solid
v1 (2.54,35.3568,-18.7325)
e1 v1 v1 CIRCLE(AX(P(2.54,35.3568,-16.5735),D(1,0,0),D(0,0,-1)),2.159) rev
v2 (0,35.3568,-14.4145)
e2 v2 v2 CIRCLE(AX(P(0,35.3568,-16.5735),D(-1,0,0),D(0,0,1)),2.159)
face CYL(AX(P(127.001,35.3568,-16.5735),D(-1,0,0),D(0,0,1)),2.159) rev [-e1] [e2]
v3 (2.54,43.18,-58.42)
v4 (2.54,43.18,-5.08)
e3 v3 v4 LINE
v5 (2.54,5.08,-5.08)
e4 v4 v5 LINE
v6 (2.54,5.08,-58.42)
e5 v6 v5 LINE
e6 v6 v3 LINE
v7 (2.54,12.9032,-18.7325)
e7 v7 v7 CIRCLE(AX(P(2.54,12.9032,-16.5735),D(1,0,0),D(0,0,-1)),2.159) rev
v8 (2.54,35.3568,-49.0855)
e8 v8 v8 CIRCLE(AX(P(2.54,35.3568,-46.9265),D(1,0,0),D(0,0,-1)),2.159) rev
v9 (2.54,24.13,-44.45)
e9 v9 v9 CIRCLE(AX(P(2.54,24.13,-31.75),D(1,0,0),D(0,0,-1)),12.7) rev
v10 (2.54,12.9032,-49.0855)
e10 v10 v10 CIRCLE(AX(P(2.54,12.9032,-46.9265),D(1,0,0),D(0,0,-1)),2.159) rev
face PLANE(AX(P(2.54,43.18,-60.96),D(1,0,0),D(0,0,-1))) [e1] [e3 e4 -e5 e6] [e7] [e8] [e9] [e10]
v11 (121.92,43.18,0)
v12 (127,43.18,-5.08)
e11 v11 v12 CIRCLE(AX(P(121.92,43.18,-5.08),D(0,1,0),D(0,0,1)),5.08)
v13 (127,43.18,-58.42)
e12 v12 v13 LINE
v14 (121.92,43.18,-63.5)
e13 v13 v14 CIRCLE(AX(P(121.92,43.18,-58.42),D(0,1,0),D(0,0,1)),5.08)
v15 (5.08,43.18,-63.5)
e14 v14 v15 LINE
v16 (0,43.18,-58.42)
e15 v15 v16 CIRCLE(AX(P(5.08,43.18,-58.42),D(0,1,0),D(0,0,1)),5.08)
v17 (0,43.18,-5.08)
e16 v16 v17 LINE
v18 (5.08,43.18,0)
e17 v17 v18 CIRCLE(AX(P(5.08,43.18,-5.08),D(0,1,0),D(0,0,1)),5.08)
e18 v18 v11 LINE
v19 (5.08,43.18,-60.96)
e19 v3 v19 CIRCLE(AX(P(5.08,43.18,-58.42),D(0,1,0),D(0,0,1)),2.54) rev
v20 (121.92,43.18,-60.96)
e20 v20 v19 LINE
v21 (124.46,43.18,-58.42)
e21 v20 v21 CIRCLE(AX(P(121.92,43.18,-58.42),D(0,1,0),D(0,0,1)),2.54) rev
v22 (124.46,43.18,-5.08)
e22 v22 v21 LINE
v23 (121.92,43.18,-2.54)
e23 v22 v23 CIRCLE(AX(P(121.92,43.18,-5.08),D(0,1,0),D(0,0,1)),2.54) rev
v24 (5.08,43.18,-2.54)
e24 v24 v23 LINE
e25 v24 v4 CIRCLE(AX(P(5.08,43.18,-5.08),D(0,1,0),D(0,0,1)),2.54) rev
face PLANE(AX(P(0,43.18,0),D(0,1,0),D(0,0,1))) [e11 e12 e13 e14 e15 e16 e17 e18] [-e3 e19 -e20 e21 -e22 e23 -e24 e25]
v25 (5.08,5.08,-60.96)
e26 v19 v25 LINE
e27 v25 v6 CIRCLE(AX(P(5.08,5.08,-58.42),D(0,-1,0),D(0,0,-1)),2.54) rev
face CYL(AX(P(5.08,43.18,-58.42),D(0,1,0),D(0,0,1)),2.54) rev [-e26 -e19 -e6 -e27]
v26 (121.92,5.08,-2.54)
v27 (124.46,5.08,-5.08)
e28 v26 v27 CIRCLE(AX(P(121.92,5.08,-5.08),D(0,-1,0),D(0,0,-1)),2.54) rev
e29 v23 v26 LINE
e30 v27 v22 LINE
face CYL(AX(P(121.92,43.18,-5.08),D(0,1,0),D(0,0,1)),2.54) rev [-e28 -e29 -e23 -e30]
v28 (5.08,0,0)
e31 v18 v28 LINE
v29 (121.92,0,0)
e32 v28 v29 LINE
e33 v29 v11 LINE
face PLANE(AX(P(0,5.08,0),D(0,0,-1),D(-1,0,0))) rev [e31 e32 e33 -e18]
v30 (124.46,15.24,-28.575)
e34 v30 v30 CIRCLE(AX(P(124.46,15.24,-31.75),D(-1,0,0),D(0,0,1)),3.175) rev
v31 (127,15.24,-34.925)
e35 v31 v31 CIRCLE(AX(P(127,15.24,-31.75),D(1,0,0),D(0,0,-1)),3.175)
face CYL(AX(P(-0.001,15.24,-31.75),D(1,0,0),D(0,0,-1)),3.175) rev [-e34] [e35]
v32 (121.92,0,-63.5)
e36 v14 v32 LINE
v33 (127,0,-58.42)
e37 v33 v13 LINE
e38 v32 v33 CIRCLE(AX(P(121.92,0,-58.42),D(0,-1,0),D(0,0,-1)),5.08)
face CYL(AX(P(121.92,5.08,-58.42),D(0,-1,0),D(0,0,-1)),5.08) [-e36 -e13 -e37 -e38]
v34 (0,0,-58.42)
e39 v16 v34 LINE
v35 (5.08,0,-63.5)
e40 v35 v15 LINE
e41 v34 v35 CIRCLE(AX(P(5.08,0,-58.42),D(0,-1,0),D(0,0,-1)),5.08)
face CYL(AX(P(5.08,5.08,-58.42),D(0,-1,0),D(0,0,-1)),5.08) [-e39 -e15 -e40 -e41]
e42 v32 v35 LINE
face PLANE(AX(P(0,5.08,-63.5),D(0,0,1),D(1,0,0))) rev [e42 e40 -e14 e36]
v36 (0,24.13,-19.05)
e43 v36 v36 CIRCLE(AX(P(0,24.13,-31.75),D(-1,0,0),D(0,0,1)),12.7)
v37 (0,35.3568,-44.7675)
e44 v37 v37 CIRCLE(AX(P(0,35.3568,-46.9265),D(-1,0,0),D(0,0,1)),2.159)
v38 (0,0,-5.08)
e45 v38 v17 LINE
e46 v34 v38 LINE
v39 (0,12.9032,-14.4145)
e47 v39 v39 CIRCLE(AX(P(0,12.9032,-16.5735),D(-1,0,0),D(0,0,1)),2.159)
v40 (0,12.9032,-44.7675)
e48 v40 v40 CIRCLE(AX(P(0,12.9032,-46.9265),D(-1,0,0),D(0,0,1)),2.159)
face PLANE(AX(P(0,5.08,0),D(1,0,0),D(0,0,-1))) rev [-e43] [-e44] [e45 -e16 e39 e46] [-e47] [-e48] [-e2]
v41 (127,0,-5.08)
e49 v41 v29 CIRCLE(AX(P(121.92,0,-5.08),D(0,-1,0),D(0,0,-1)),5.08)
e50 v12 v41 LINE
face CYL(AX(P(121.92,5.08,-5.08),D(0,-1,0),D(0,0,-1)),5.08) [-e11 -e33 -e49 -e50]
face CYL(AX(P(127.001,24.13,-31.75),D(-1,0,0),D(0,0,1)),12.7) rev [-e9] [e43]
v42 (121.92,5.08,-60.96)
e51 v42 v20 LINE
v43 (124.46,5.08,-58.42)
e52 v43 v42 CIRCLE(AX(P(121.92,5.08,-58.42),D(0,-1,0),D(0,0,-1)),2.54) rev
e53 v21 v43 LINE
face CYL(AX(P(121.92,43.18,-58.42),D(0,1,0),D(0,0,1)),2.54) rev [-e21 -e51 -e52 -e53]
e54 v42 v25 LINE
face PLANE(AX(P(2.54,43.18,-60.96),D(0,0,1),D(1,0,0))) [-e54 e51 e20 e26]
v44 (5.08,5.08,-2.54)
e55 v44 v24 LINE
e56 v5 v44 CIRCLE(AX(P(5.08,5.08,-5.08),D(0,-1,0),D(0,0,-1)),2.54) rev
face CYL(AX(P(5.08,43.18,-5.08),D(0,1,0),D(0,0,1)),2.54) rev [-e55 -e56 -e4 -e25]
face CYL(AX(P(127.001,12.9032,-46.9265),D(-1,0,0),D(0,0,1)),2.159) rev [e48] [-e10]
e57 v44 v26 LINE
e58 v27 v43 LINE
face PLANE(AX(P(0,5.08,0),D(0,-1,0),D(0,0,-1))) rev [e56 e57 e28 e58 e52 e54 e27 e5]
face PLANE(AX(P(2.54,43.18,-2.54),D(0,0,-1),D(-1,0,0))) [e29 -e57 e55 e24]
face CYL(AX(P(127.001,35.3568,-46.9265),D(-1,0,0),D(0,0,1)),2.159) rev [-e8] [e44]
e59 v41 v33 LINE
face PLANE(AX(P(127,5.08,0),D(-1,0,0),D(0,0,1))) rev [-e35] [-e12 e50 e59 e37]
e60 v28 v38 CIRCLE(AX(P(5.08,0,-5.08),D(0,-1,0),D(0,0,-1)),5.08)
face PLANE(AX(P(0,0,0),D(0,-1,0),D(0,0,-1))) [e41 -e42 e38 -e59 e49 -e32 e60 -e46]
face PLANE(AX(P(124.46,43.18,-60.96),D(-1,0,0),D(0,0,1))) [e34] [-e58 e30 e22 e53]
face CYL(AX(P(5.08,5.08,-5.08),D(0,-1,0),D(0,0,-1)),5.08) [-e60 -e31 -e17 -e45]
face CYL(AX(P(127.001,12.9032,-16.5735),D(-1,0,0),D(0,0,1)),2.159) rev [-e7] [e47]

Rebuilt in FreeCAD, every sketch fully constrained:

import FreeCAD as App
import Part
import Sketcher
from FreeCAD import Vector
Q = App.Units.Quantity


def edges_at(feature, points):
    """Names of the edges that pass closest to the given points."""
    edges = feature.Shape.Edges
    near = lambda p: min(range(len(edges)), key=lambda i: edges[i].distToShape(Part.Vertex(*p))[0])
    return sorted({f"Edge{near(p) + 1}" for p in points})

doc = App.newDocument("Part")
body = doc.addObject("PartDesign::Body", "Body")

sketch1 = doc.addObject("Sketcher::SketchObject", "Sketch")
body.addObject(sketch1)
sketch1.AttachmentSupport = (doc.XZ_Plane, [""])
sketch1.MapMode = "FlatFace"
sketch1.addGeometry(Part.LineSegment(Vector(0, -63.5, 0), Vector(0, 0, 0)), False)
sketch1.addGeometry(Part.LineSegment(Vector(0, 0, 0), Vector(127, 0, 0)), False)
sketch1.addGeometry(Part.LineSegment(Vector(127, 0, 0), Vector(127, -63.5, 0)), False)
sketch1.addGeometry(Part.LineSegment(Vector(127, -63.5, 0), Vector(0, -63.5, 0)), False)
sketch1.addConstraint(Sketcher.Constraint("Coincident", 0, 2, 1, 1))
sketch1.addConstraint(Sketcher.Constraint("Coincident", 1, 2, 2, 1))
sketch1.addConstraint(Sketcher.Constraint("Coincident", 2, 2, 3, 1))
sketch1.addConstraint(Sketcher.Constraint("Coincident", 3, 2, 0, 1))
sketch1.addConstraint(Sketcher.Constraint("Vertical", 0))
sketch1.addConstraint(Sketcher.Constraint("Horizontal", 1))
sketch1.addConstraint(Sketcher.Constraint("Vertical", 2))
sketch1.addConstraint(Sketcher.Constraint("Horizontal", 3))
sketch1.addConstraint(Sketcher.Constraint("Coincident", 0, 2, -1, 1))
sketch1.addConstraint(Sketcher.Constraint("DistanceX", 1, 1, 1, 2, Q("5 in")))
sketch1.addConstraint(Sketcher.Constraint("DistanceY", 0, 1, 0, 2, Q("2.5 in")))
pad1 = doc.addObject("PartDesign::Pad", "Pad")
body.addObject(pad1)
pad1.Profile = sketch1
pad1.Length = Q("0.2 in")
pad1.Reversed = True

sketch2 = doc.addObject("Sketcher::SketchObject", "Sketch001")
body.addObject(sketch2)
sketch2.AttachmentSupport = (doc.XZ_Plane, [""])
sketch2.MapMode = "FlatFace"
sketch2.AttachmentOffset = App.Placement(Vector(0, 0, -0.2 * 25.4), App.Rotation())
sketch2.addGeometry(Part.LineSegment(Vector(0, -63.5, 0), Vector(0, 0, 0)), False)
sketch2.addGeometry(Part.LineSegment(Vector(0, 0, 0), Vector(127, 0, 0)), False)
sketch2.addGeometry(Part.LineSegment(Vector(127, 0, 0), Vector(127, -63.5, 0)), False)
sketch2.addGeometry(Part.LineSegment(Vector(127, -63.5, 0), Vector(0, -63.5, 0)), False)
sketch2.addGeometry(Part.LineSegment(Vector(124.46, -2.54, 0), Vector(2.54, -2.54, 0)), False)
sketch2.addGeometry(Part.LineSegment(Vector(2.54, -2.54, 0), Vector(2.54, -60.96, 0)), False)
sketch2.addGeometry(Part.LineSegment(Vector(2.54, -60.96, 0), Vector(124.46, -60.96, 0)), False)
sketch2.addGeometry(Part.LineSegment(Vector(124.46, -60.96, 0), Vector(124.46, -2.54, 0)), False)
sketch2.addConstraint(Sketcher.Constraint("Coincident", 0, 2, 1, 1))
sketch2.addConstraint(Sketcher.Constraint("Coincident", 1, 2, 2, 1))
sketch2.addConstraint(Sketcher.Constraint("Coincident", 2, 2, 3, 1))
sketch2.addConstraint(Sketcher.Constraint("Coincident", 3, 2, 0, 1))
sketch2.addConstraint(Sketcher.Constraint("Coincident", 4, 2, 5, 1))
sketch2.addConstraint(Sketcher.Constraint("Coincident", 5, 2, 6, 1))
sketch2.addConstraint(Sketcher.Constraint("Coincident", 6, 2, 7, 1))
sketch2.addConstraint(Sketcher.Constraint("Coincident", 7, 2, 4, 1))
sketch2.addConstraint(Sketcher.Constraint("Vertical", 0))
sketch2.addConstraint(Sketcher.Constraint("Horizontal", 1))
sketch2.addConstraint(Sketcher.Constraint("Vertical", 2))
sketch2.addConstraint(Sketcher.Constraint("Horizontal", 3))
sketch2.addConstraint(Sketcher.Constraint("Horizontal", 4))
sketch2.addConstraint(Sketcher.Constraint("Vertical", 5))
sketch2.addConstraint(Sketcher.Constraint("Horizontal", 6))
sketch2.addConstraint(Sketcher.Constraint("Vertical", 7))
sketch2.addConstraint(Sketcher.Constraint("Coincident", 0, 2, -1, 1))
sketch2.addConstraint(Sketcher.Constraint("DistanceX", 1, 1, 1, 2, Q("5 in")))
sketch2.addConstraint(Sketcher.Constraint("DistanceX", 4, 2, 4, 1, Q("4.8 in")))
sketch2.addConstraint(Sketcher.Constraint("DistanceY", 0, 1, 0, 2, Q("2.5 in")))
sketch2.addConstraint(Sketcher.Constraint("DistanceY", 5, 2, 5, 1, Q("2.3 in")))
sketch2.addConstraint(Sketcher.Constraint("DistanceX", -1, 1, 4, 2, Q("0.1 in")))
sketch2.addConstraint(Sketcher.Constraint("DistanceY", 4, 2, -1, 1, Q("0.1 in")))
pad2 = doc.addObject("PartDesign::Pad", "Pad001")
body.addObject(pad2)
pad2.Profile = sketch2
pad2.Length = Q("1.5 in")
pad2.Reversed = True

sketch3 = doc.addObject("Sketcher::SketchObject", "Sketch002")
body.addObject(sketch3)
sketch3.AttachmentSupport = (doc.YZ_Plane, [""])
sketch3.MapMode = "FlatFace"
sketch3.addGeometry(Part.Circle(Vector(24.13, -31.75, 0), Vector(0, 0, 1), 12.7), False)
sketch3.addConstraint(Sketcher.Constraint("Diameter", 0, Q("1 in")))
sketch3.addConstraint(Sketcher.Constraint("DistanceX", -1, 1, 0, 3, Q("0.95 in")))
sketch3.addConstraint(Sketcher.Constraint("DistanceY", 0, 3, -1, 1, Q("1.25 in")))
pocket1 = doc.addObject("PartDesign::Pocket", "Pocket")
body.addObject(pocket1)
pocket1.Profile = sketch3
pocket1.Type = "UpToFirst"
pocket1.Reversed = True

sketch4 = doc.addObject("Sketcher::SketchObject", "Sketch003")
body.addObject(sketch4)
sketch4.AttachmentSupport = (doc.YZ_Plane, [""])
sketch4.MapMode = "FlatFace"
sketch4.addGeometry(Part.Circle(Vector(35.3568, -46.9265, 0), Vector(0, 0, 1), 2.159), False)
sketch4.addConstraint(Sketcher.Constraint("Diameter", 0, Q("0.17 in")))
sketch4.addConstraint(Sketcher.Constraint("DistanceX", -1, 1, 0, 3, Q("1.392 in")))
sketch4.addConstraint(Sketcher.Constraint("DistanceY", 0, 3, -1, 1, Q("1.8475 in")))
pocket2 = doc.addObject("PartDesign::Pocket", "Pocket001")
body.addObject(pocket2)
pocket2.Profile = sketch4
pocket2.Type = "UpToFirst"
pocket2.Reversed = True

sketch5 = doc.addObject("Sketcher::SketchObject", "Sketch004")
body.addObject(sketch5)
sketch5.AttachmentSupport = (doc.YZ_Plane, [""])
sketch5.MapMode = "FlatFace"
sketch5.addGeometry(Part.Circle(Vector(35.3568, -16.5735, 0), Vector(0, 0, 1), 2.159), False)
sketch5.addConstraint(Sketcher.Constraint("Diameter", 0, Q("0.17 in")))
sketch5.addConstraint(Sketcher.Constraint("DistanceX", -1, 1, 0, 3, Q("1.392 in")))
sketch5.addConstraint(Sketcher.Constraint("DistanceY", 0, 3, -1, 1, Q("0.6525 in")))
pocket3 = doc.addObject("PartDesign::Pocket", "Pocket002")
body.addObject(pocket3)
pocket3.Profile = sketch5
pocket3.Type = "UpToFirst"
pocket3.Reversed = True

sketch6 = doc.addObject("Sketcher::SketchObject", "Sketch005")
body.addObject(sketch6)
sketch6.AttachmentSupport = (doc.YZ_Plane, [""])
sketch6.MapMode = "FlatFace"
sketch6.addGeometry(Part.Circle(Vector(12.9032, -46.9265, 0), Vector(0, 0, 1), 2.159), False)
sketch6.addConstraint(Sketcher.Constraint("Diameter", 0, Q("0.17 in")))
sketch6.addConstraint(Sketcher.Constraint("DistanceX", -1, 1, 0, 3, Q("0.508 in")))
sketch6.addConstraint(Sketcher.Constraint("DistanceY", 0, 3, -1, 1, Q("1.8475 in")))
pocket4 = doc.addObject("PartDesign::Pocket", "Pocket003")
body.addObject(pocket4)
pocket4.Profile = sketch6
pocket4.Type = "UpToFirst"
pocket4.Reversed = True

sketch7 = doc.addObject("Sketcher::SketchObject", "Sketch006")
body.addObject(sketch7)
sketch7.AttachmentSupport = (doc.YZ_Plane, [""])
sketch7.MapMode = "FlatFace"
sketch7.addGeometry(Part.Circle(Vector(12.9032, -16.5735, 0), Vector(0, 0, 1), 2.159), False)
sketch7.addConstraint(Sketcher.Constraint("Diameter", 0, Q("0.17 in")))
sketch7.addConstraint(Sketcher.Constraint("DistanceX", -1, 1, 0, 3, Q("0.508 in")))
sketch7.addConstraint(Sketcher.Constraint("DistanceY", 0, 3, -1, 1, Q("0.6525 in")))
pocket5 = doc.addObject("PartDesign::Pocket", "Pocket004")
body.addObject(pocket5)
pocket5.Profile = sketch7
pocket5.Type = "UpToFirst"
pocket5.Reversed = True

sketch8 = doc.addObject("Sketcher::SketchObject", "Sketch007")
body.addObject(sketch8)
sketch8.AttachmentSupport = (doc.YZ_Plane, [""])
sketch8.MapMode = "FlatFace"
sketch8.AttachmentOffset = App.Placement(Vector(0, 0, 5 * 25.4), App.Rotation())
sketch8.addGeometry(Part.Circle(Vector(15.24, -31.75, 0), Vector(0, 0, 1), 3.175), False)
sketch8.addConstraint(Sketcher.Constraint("Diameter", 0, Q("0.25 in")))
sketch8.addConstraint(Sketcher.Constraint("DistanceX", -1, 1, 0, 3, Q("0.6 in")))
sketch8.addConstraint(Sketcher.Constraint("DistanceY", 0, 3, -1, 1, Q("1.25 in")))
pocket6 = doc.addObject("PartDesign::Pocket", "Pocket005")
body.addObject(pocket6)
pocket6.Profile = sketch8
pocket6.Type = "UpToFirst"
doc.recompute()

fillet = doc.addObject("PartDesign::Fillet", "Fillet")
body.addObject(fillet)
fillet.Base = (pocket6, edges_at(pocket6, [
    (0, 21.59, -63.5),
    (127, 21.59, -63.5),
    (127, 21.59, 0),
    (0, 21.59, 0),
]))
fillet.Radius = Q("0.2 in")
doc.recompute()

fillet2 = doc.addObject("PartDesign::Fillet", "Fillet001")
body.addObject(fillet2)
fillet2.Base = (fillet, edges_at(fillet, [
    (2.54, 24.13, -2.54),
    (124.46, 24.13, -2.54),
    (124.46, 24.13, -60.96),
    (2.54, 24.13, -60.96),
]))
fillet2.Radius = Q("0.1 in")

doc.recompute()
